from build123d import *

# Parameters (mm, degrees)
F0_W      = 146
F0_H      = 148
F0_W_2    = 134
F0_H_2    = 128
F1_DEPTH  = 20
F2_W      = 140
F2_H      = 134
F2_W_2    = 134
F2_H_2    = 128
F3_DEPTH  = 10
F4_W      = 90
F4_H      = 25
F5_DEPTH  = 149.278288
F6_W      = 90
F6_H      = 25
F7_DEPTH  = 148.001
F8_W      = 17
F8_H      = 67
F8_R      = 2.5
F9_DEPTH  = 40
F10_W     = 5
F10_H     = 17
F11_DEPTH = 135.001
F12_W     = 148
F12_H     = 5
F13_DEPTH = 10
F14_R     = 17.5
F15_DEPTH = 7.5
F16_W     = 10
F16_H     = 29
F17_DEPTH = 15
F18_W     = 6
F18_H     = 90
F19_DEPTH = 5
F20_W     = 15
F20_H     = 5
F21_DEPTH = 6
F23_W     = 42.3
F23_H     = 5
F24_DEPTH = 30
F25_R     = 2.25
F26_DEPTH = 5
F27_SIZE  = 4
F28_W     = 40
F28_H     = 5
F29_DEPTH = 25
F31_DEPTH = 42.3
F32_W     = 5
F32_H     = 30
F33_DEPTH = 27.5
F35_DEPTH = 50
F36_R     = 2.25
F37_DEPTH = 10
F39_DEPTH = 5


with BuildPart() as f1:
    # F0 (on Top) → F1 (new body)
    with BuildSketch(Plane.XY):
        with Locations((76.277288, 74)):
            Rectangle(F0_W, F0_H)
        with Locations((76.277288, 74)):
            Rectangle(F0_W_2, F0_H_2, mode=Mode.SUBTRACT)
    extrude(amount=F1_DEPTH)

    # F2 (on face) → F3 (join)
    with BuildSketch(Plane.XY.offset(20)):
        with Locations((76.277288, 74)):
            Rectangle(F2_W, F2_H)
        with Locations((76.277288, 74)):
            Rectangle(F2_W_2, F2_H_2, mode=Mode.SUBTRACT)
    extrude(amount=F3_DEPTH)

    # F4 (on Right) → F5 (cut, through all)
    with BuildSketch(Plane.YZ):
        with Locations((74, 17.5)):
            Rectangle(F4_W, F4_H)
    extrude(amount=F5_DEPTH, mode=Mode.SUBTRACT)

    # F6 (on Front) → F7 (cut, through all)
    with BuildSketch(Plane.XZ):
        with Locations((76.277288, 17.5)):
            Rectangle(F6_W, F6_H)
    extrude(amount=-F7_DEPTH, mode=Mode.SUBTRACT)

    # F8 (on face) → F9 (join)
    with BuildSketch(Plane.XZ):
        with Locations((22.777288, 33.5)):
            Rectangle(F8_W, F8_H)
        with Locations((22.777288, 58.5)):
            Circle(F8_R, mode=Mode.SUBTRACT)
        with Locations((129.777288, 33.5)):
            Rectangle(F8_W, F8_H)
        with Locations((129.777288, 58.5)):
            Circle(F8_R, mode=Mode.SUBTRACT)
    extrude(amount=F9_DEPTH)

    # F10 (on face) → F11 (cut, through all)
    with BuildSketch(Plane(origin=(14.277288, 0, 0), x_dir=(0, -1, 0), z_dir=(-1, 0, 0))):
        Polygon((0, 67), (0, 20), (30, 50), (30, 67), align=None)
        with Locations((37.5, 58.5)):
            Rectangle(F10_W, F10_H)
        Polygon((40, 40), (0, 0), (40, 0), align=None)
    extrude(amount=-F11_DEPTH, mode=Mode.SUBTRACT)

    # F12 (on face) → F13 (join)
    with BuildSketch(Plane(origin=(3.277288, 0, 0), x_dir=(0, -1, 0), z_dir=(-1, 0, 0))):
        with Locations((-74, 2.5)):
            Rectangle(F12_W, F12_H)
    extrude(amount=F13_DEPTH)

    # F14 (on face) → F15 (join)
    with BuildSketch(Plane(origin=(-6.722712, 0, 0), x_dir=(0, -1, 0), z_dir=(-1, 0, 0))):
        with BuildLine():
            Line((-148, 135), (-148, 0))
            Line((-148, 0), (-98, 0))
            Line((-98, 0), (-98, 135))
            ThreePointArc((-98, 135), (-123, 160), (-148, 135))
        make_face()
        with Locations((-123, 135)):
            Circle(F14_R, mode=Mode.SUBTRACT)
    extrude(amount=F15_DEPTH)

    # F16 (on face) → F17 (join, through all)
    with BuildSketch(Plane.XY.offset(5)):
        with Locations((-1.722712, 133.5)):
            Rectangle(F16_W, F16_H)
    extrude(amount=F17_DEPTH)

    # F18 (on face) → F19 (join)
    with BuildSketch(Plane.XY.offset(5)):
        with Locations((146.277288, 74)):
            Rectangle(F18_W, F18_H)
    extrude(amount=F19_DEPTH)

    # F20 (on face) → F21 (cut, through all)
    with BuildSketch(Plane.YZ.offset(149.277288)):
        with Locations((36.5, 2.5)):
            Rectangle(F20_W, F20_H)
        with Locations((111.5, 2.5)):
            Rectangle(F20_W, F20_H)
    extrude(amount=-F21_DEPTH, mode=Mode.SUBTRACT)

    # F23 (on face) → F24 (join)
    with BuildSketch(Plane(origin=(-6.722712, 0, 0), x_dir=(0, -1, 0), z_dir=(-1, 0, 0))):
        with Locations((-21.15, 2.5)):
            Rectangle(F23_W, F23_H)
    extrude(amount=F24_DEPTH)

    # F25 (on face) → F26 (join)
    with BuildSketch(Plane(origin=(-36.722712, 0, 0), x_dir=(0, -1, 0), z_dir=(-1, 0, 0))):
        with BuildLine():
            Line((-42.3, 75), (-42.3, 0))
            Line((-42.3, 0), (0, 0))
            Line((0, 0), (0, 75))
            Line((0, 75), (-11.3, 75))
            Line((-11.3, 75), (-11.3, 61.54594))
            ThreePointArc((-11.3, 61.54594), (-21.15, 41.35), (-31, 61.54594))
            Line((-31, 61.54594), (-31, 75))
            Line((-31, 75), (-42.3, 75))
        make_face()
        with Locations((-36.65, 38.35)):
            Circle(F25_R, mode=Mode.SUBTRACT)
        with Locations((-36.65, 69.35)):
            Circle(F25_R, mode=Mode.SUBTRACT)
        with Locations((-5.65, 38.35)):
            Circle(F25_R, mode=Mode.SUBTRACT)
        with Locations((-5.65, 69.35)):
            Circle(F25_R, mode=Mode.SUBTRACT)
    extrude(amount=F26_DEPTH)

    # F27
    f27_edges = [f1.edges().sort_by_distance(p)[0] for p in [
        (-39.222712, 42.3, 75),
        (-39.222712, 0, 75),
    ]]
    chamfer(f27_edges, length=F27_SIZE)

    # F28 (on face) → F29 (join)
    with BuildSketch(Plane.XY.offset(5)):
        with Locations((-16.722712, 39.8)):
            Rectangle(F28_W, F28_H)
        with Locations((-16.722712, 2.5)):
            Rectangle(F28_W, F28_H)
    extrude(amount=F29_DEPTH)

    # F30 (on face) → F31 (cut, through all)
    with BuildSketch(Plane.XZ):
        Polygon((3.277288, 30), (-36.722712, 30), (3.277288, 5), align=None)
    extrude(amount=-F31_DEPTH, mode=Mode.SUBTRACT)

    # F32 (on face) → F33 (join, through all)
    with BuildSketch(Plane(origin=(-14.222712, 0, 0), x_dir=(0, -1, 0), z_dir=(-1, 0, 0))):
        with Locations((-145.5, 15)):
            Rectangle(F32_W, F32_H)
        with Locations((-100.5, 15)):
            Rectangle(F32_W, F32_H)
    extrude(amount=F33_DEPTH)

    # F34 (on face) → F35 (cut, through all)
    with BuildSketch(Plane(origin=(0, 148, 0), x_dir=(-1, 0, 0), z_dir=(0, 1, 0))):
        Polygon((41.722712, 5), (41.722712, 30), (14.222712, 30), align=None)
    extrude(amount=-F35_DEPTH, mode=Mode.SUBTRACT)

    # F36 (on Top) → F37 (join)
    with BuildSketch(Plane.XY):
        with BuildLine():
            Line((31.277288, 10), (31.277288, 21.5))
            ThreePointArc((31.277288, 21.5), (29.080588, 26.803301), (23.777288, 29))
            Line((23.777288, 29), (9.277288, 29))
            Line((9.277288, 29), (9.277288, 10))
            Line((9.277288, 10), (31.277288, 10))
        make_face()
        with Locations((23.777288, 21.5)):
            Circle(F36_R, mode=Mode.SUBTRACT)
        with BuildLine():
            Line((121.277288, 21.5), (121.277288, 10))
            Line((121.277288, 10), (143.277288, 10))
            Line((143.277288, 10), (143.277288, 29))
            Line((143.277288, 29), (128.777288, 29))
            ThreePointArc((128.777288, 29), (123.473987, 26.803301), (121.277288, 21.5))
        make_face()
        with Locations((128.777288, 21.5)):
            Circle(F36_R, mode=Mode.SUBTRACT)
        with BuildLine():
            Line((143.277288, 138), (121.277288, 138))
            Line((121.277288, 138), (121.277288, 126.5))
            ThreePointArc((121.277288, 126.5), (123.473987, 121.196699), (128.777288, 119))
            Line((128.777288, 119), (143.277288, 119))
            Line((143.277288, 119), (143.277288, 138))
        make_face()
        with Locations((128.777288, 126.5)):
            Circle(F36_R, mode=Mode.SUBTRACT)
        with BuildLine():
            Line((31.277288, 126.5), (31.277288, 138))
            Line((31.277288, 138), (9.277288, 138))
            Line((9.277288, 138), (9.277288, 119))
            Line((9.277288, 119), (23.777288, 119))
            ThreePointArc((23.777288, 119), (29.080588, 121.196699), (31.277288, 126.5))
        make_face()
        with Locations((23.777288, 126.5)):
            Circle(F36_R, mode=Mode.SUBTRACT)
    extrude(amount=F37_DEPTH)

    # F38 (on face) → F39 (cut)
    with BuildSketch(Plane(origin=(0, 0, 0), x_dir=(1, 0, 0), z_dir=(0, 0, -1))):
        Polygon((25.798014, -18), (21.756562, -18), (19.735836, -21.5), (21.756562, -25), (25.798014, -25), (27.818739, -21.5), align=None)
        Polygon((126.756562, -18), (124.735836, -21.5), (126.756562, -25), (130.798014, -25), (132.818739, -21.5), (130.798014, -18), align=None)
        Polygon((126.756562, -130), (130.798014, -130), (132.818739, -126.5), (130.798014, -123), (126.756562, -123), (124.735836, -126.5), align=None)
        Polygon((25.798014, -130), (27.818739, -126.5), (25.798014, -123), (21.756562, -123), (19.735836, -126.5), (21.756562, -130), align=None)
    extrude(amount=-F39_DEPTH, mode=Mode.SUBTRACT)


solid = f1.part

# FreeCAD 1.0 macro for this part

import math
import FreeCAD as App
import Part
import Sketcher
Q = App.Units.Quantity


def edges_at(feature, points):
    """Names of the edges that pass closest to the given points."""
    edges = feature.Shape.Edges
    near = lambda p: min(range(len(edges)), key=lambda i: edges[i].distToShape(Part.Vertex(*p))[0])
    return sorted({f"Edge{near(p) + 1}" for p in points})


def add_polygon(sketch, points):
    """Adds a closed chain of lines whose ends are joined by coincident constraints."""
    first, n = sketch.GeometryCount, len(points)
    for a, b in zip(points, points[1:] + points[:1]):
        sketch.addGeometry(Part.LineSegment(App.Vector(*a, 0), App.Vector(*b, 0)), False)
    for i in range(n):
        sketch.addConstraint(Sketcher.Constraint("Coincident", first + i, 2, first + (i + 1) % n, 1))

doc = App.newDocument("Part")
body = doc.addObject("PartDesign::Body", "Body")

# Sketch on XY plane
sketch1 = doc.addObject("Sketcher::SketchObject", "Sketch")
body.addObject(sketch1)
sketch1.AttachmentSupport = (doc.XY_Plane, [""])
sketch1.MapMode = "FlatFace"
add_polygon(sketch1, [(3, 148), (3, 0), (149, 0), (149, 148)])  # lines 0-3
add_polygon(sketch1, [(143, 10), (9, 10), (9, 138), (143, 138)])  # lines 4-7
sketch1.addConstraint([
    Sketcher.Constraint("Vertical", 0),
    Sketcher.Constraint("Horizontal", 1),
    Sketcher.Constraint("Vertical", 2),
    Sketcher.Constraint("Horizontal", 3),
    Sketcher.Constraint("Horizontal", 4),
    Sketcher.Constraint("Vertical", 5),
    Sketcher.Constraint("Horizontal", 6),
    Sketcher.Constraint("Vertical", 7),
    Sketcher.Constraint("PointOnObject", 0, 2, -1),
    Sketcher.Constraint("DistanceX", 1, 1, 1, 2, 146.0),
    Sketcher.Constraint("DistanceX", 4, 2, 4, 1, 134.0),
    Sketcher.Constraint("DistanceY", 0, 2, 0, 1, 148.0),
    Sketcher.Constraint("DistanceY", 5, 1, 5, 2, 128.0),
    Sketcher.Constraint("DistanceY", -1, 1, 4, 2, 10.0),
    Sketcher.Constraint("DistanceX", 0, 2, 4, 2, 6.0),
    Sketcher.Constraint("DistanceX", -1, 1, 0, 2, 3.277288),
])
pad1 = doc.addObject("PartDesign::Pad", "Pad")
body.addObject(pad1)
pad1.Profile = sketch1
pad1.Length = 20

# Sketch on XY plane
sketch2 = doc.addObject("Sketcher::SketchObject", "Sketch001")
body.addObject(sketch2)
sketch2.AttachmentSupport = (doc.XY_Plane, [""])
sketch2.MapMode = "FlatFace"
sketch2.AttachmentOffset = App.Placement(App.Vector(0, 0, 20), App.Rotation())
add_polygon(sketch2, [(6, 141), (6, 7), (146, 7), (146, 141)])  # lines 0-3
add_polygon(sketch2, [(143, 10), (9, 10), (9, 138), (143, 138)])  # lines 4-7
sketch2.addConstraint([
    Sketcher.Constraint("Vertical", 0),
    Sketcher.Constraint("Horizontal", 1),
    Sketcher.Constraint("Vertical", 2),
    Sketcher.Constraint("Horizontal", 3),
    Sketcher.Constraint("Horizontal", 4),
    Sketcher.Constraint("Vertical", 5),
    Sketcher.Constraint("Horizontal", 6),
    Sketcher.Constraint("Vertical", 7),
    Sketcher.Constraint("Equal", 6, 0),
    Sketcher.Constraint("DistanceX", 1, 1, 1, 2, 140.0),
    Sketcher.Constraint("DistanceX", 4, 2, 4, 1, 134.0),
    Sketcher.Constraint("DistanceY", 5, 1, 5, 2, 128.0),
    Sketcher.Constraint("DistanceY", -1, 1, 0, 2, 7.0),
    Sketcher.Constraint("DistanceY", -1, 1, 4, 2, 10.0),
    Sketcher.Constraint("DistanceX", 0, 2, 4, 2, 3.0),
    Sketcher.Constraint("DistanceX", -1, 1, 0, 2, 6.277288),
])
pad2 = doc.addObject("PartDesign::Pad", "Pad001")
body.addObject(pad2)
pad2.Profile = sketch2
pad2.Length = 10

# Sketch on YZ plane
sketch3 = doc.addObject("Sketcher::SketchObject", "Sketch002")
body.addObject(sketch3)
sketch3.AttachmentSupport = (doc.YZ_Plane, [""])
sketch3.MapMode = "FlatFace"
add_polygon(sketch3, [(29, 30), (29, 5), (119, 5), (119, 30)])  # lines 0-3
sketch3.addConstraint([
    Sketcher.Constraint("Vertical", 0),
    Sketcher.Constraint("Horizontal", 1),
    Sketcher.Constraint("Vertical", 2),
    Sketcher.Constraint("Horizontal", 3),
    Sketcher.Constraint("DistanceX", 1, 1, 1, 2, 90.0),
    Sketcher.Constraint("DistanceY", 0, 2, 0, 1, 25.0),
    Sketcher.Constraint("DistanceX", -1, 1, 0, 2, 29.0),
    Sketcher.Constraint("DistanceY", -1, 1, 0, 2, 5.0),
])
pocket1 = doc.addObject("PartDesign::Pocket", "Pocket")
body.addObject(pocket1)
pocket1.Profile = sketch3
pocket1.Type = "ThroughAll"
pocket1.Reversed = True

# Sketch on XZ plane
sketch4 = doc.addObject("Sketcher::SketchObject", "Sketch003")
body.addObject(sketch4)
sketch4.AttachmentSupport = (doc.XZ_Plane, [""])
sketch4.MapMode = "FlatFace"
add_polygon(sketch4, [(31, 30), (31, 5), (121, 5), (121, 30)])  # lines 0-3
sketch4.addConstraint([
    Sketcher.Constraint("Vertical", 0),
    Sketcher.Constraint("Horizontal", 1),
    Sketcher.Constraint("Vertical", 2),
    Sketcher.Constraint("Horizontal", 3),
    Sketcher.Constraint("DistanceX", 1, 1, 1, 2, 90.0),
    Sketcher.Constraint("DistanceY", 0, 2, 0, 1, 25.0),
    Sketcher.Constraint("DistanceY", -1, 1, 0, 2, 5.0),
    Sketcher.Constraint("DistanceX", -1, 1, 1, 2, 121.277288),
])
pocket2 = doc.addObject("PartDesign::Pocket", "Pocket001")
body.addObject(pocket2)
pocket2.Profile = sketch4
pocket2.Type = "ThroughAll"

# Sketch on XZ plane
sketch5 = doc.addObject("Sketcher::SketchObject", "Sketch004")
body.addObject(sketch5)
sketch5.AttachmentSupport = (doc.XZ_Plane, [""])
sketch5.MapMode = "FlatFace"
add_polygon(sketch5, [(14.3, 67), (14.3, 0), (31.3, 0), (31.3, 67)])  # lines 0-3
sketch5.addGeometry(Part.Circle(App.Vector(22.8, 58.5, 0), App.Vector(0, 0, 1), 2.5), False)  # 4
add_polygon(sketch5, [(121.3, 67), (121.3, 0), (138.3, 0), (138.3, 67)])  # lines 5-8
sketch5.addGeometry(Part.Circle(App.Vector(129.8, 58.5, 0), App.Vector(0, 0, 1), 2.5), False)  # 9
sketch5.addConstraint([
    Sketcher.Constraint("Vertical", 0),
    Sketcher.Constraint("Horizontal", 1),
    Sketcher.Constraint("Vertical", 2),
    Sketcher.Constraint("Horizontal", 3),
    Sketcher.Constraint("Vertical", 5),
    Sketcher.Constraint("Horizontal", 6),
    Sketcher.Constraint("Vertical", 7),
    Sketcher.Constraint("Horizontal", 8),
    Sketcher.Constraint("Equal", 4, 9),
    Sketcher.Constraint("PointOnObject", 0, 2, -1),
    Sketcher.Constraint("PointOnObject", 5, 2, -1),
    Sketcher.Constraint("Horizontal", 4, 3, 9, 3),
    Sketcher.Constraint("Horizontal", 3, 2, 7, 2),
    Sketcher.Constraint("Equal", 3, 6),
    Sketcher.Constraint("Diameter", 4, 5.0),
    Sketcher.Constraint("DistanceX", 1, 1, 1, 2, 17.0),
    Sketcher.Constraint("DistanceY", 0, 2, 0, 1, 67.0),
    Sketcher.Constraint("DistanceX", 4, 3, 9, 3, 107.0),
    Sketcher.Constraint("DistanceX", 1, 2, 5, 2, 90.0),
    Sketcher.Constraint("DistanceY", -1, 1, 4, 3, 58.5),
    Sketcher.Constraint("DistanceX", 0, 2, 4, 3, 8.5),
    Sketcher.Constraint("DistanceX", -1, 1, 9, 3, 129.777288),
])
pad3 = doc.addObject("PartDesign::Pad", "Pad002")
body.addObject(pad3)
pad3.Profile = sketch5
pad3.Length = 40

# Sketch on YZ plane
sketch6 = doc.addObject("Sketcher::SketchObject", "Sketch005")
body.addObject(sketch6)
sketch6.AttachmentSupport = (doc.YZ_Plane, [""])
sketch6.MapMode = "FlatFace"
sketch6.AttachmentOffset = App.Placement(App.Vector(0, 0, 14.277288), App.Rotation())
add_polygon(sketch6, [(0, 67), (0, 20), (-30, 50), (-30, 67)])  # lines 0-3
add_polygon(sketch6, [(-35, 67), (-35, 50), (-40, 50), (-40, 67)])  # lines 4-7
add_polygon(sketch6, [(-40, 40), (0, 0), (-40, 0)])  # lines 8-10
sketch6.addConstraint([
    Sketcher.Constraint("Vertical", 0),
    Sketcher.Constraint("Vertical", 2),
    Sketcher.Constraint("Horizontal", 3),
    Sketcher.Constraint("Vertical", 4),
    Sketcher.Constraint("Horizontal", 5),
    Sketcher.Constraint("Vertical", 6),
    Sketcher.Constraint("Horizontal", 7),
    Sketcher.Constraint("Horizontal", 9),
    Sketcher.Constraint("Vertical", 10),
    Sketcher.Constraint("Coincident", 8, 2, -1, 1),
    Sketcher.Constraint("PointOnObject", 0, 2, -2),
    Sketcher.Constraint("Parallel", 1, 8),
    Sketcher.Constraint("Horizontal", 1, 2, 4, 2),
    Sketcher.Constraint("Horizontal", 3, 2, 6, 2),
    Sketcher.Constraint("Vertical", 6, 2, 9, 2),
    Sketcher.Constraint("Equal", 9, 10),
    Sketcher.Constraint("DistanceX", 3, 1, 3, 2, 30.0),
    Sketcher.Constraint("DistanceX", 5, 2, 5, 1, 5.0),
    Sketcher.Constraint("DistanceX", 9, 2, 9, 1, 40.0),
    Sketcher.Constraint("DistanceY", 0, 2, 0, 1, 47.0),
    Sketcher.Constraint("DistanceY", -1, 1, 0, 2, 20.0),
])
pocket3 = doc.addObject("PartDesign::Pocket", "Pocket002")
body.addObject(pocket3)
pocket3.Profile = sketch6
pocket3.Type = "ThroughAll"
pocket3.Reversed = True

# Sketch on YZ plane
sketch7 = doc.addObject("Sketcher::SketchObject", "Sketch006")
body.addObject(sketch7)
sketch7.AttachmentSupport = (doc.YZ_Plane, [""])
sketch7.MapMode = "FlatFace"
sketch7.AttachmentOffset = App.Placement(App.Vector(0, 0, 3.277288), App.Rotation())
add_polygon(sketch7, [(148, 5), (148, 0), (0, 0), (0, 5)])  # lines 0-3
sketch7.addConstraint([
    Sketcher.Constraint("Vertical", 0),
    Sketcher.Constraint("Horizontal", 1),
    Sketcher.Constraint("Vertical", 2),
    Sketcher.Constraint("Horizontal", 3),
    Sketcher.Constraint("Coincident", 1, 2, -1, 1),
    Sketcher.Constraint("DistanceX", 1, 2, 1, 1, 148.0),
    Sketcher.Constraint("DistanceY", 0, 2, 0, 1, 5.0),
])
pad4 = doc.addObject("PartDesign::Pad", "Pad003")
body.addObject(pad4)
pad4.Profile = sketch7
pad4.Length = 10
pad4.Reversed = True

# Sketch on YZ plane
sketch8 = doc.addObject("Sketcher::SketchObject", "Sketch007")
body.addObject(sketch8)
sketch8.AttachmentSupport = (doc.YZ_Plane, [""])
sketch8.MapMode = "FlatFace"
sketch8.AttachmentOffset = App.Placement(App.Vector(0, 0, -6.722712), App.Rotation())
sketch8.addGeometry([
    Part.LineSegment(App.Vector(148, 135, 0), App.Vector(148, 0, 0)),  # 0
    Part.LineSegment(App.Vector(148, 0, 0), App.Vector(98, 0, 0)),  # 1
    Part.LineSegment(App.Vector(98, 0, 0), App.Vector(98, 135, 0)),  # 2
    Part.ArcOfCircle(Part.Circle(App.Vector(123, 135, 0), App.Vector(0, 0, 1), 25), math.radians(0), math.radians(180)),  # 3
    Part.Circle(App.Vector(123, 135, 0), App.Vector(0, 0, 1), 18),  # 4
], False)
sketch8.addConstraint([
    Sketcher.Constraint("Coincident", 0, 2, 1, 1),
    Sketcher.Constraint("Coincident", 1, 2, 2, 1),
    Sketcher.Constraint("Tangent", 2, 2, 3, 2),
    Sketcher.Constraint("Tangent", 3, 1, 0, 1),
    Sketcher.Constraint("Vertical", 0),
    Sketcher.Constraint("Horizontal", 1),
    Sketcher.Constraint("Vertical", 2),
    Sketcher.Constraint("Coincident", 4, 3, 3, 3),
    Sketcher.Constraint("PointOnObject", 0, 2, -1),
    Sketcher.Constraint("Diameter", 4, 35.0),
    Sketcher.Constraint("Radius", 3, 25.0),
    Sketcher.Constraint("DistanceY", 0, 2, 0, 1, 135.0),
    Sketcher.Constraint("DistanceX", -1, 1, 3, 3, 123.0),
])
pad5 = doc.addObject("PartDesign::Pad", "Pad004")
body.addObject(pad5)
pad5.Profile = sketch8
pad5.Length = 7.5
pad5.Reversed = True

# Sketch on XY plane
sketch9 = doc.addObject("Sketcher::SketchObject", "Sketch008")
body.addObject(sketch9)
sketch9.AttachmentSupport = (doc.XY_Plane, [""])
sketch9.MapMode = "FlatFace"
sketch9.AttachmentOffset = App.Placement(App.Vector(0, 0, 5), App.Rotation())
add_polygon(sketch9, [(-7, 148), (-7, 119), (3, 119), (3, 148)])  # lines 0-3
sketch9.addConstraint([
    Sketcher.Constraint("Vertical", 0),
    Sketcher.Constraint("Horizontal", 1),
    Sketcher.Constraint("Vertical", 2),
    Sketcher.Constraint("Horizontal", 3),
    Sketcher.Constraint("DistanceX", 1, 1, 1, 2, 10.0),
    Sketcher.Constraint("DistanceY", 0, 2, 0, 1, 29.0),
    Sketcher.Constraint("DistanceY", -1, 1, 0, 2, 119.0),
    Sketcher.Constraint("DistanceX", 0, 2, -1, 1, 6.722712),
])
pad6 = doc.addObject("PartDesign::Pad", "Pad005")
body.addObject(pad6)
pad6.Profile = sketch9
pad6.Length = 15

# Sketch on XY plane
sketch10 = doc.addObject("Sketcher::SketchObject", "Sketch009")
body.addObject(sketch10)
sketch10.AttachmentSupport = (doc.XY_Plane, [""])
sketch10.MapMode = "FlatFace"
sketch10.AttachmentOffset = App.Placement(App.Vector(0, 0, 5), App.Rotation())
add_polygon(sketch10, [(143, 119), (143, 29), (149, 29), (149, 119)])  # lines 0-3
sketch10.addConstraint([
    Sketcher.Constraint("Vertical", 0),
    Sketcher.Constraint("Horizontal", 1),
    Sketcher.Constraint("Vertical", 2),
    Sketcher.Constraint("Horizontal", 3),
    Sketcher.Constraint("DistanceX", 1, 1, 1, 2, 6.0),
    Sketcher.Constraint("DistanceY", 0, 2, 0, 1, 90.0),
    Sketcher.Constraint("DistanceY", -1, 1, 0, 2, 29.0),
    Sketcher.Constraint("DistanceX", -1, 1, 0, 2, 143.277288),
])
pad7 = doc.addObject("PartDesign::Pad", "Pad006")
body.addObject(pad7)
pad7.Profile = sketch10
pad7.Length = 5

# Sketch on YZ plane
sketch11 = doc.addObject("Sketcher::SketchObject", "Sketch010")
body.addObject(sketch11)
sketch11.AttachmentSupport = (doc.YZ_Plane, [""])
sketch11.MapMode = "FlatFace"
sketch11.AttachmentOffset = App.Placement(App.Vector(0, 0, 149.277288), App.Rotation())
add_polygon(sketch11, [(29, 5), (29, 0), (44, 0), (44, 5)])  # lines 0-3
add_polygon(sketch11, [(104, 5), (104, 0), (119, 0), (119, 5)])  # lines 4-7
sketch11.addConstraint([
    Sketcher.Constraint("Vertical", 0),
    Sketcher.Constraint("Horizontal", 1),
    Sketcher.Constraint("Vertical", 2),
    Sketcher.Constraint("Horizontal", 3),
    Sketcher.Constraint("Vertical", 4),
    Sketcher.Constraint("Horizontal", 5),
    Sketcher.Constraint("Vertical", 6),
    Sketcher.Constraint("Horizontal", 7),
    Sketcher.Constraint("PointOnObject", 0, 2, -1),
    Sketcher.Constraint("PointOnObject", 4, 2, -1),
    Sketcher.Constraint("Horizontal", 3, 2, 6, 2),
    Sketcher.Constraint("Equal", 3, 5),
    Sketcher.Constraint("DistanceX", 1, 1, 1, 2, 15.0),
    Sketcher.Constraint("DistanceY", 0, 2, 0, 1, 5.0),
    Sketcher.Constraint("DistanceX", -1, 1, 0, 2, 29.0),
    Sketcher.Constraint("DistanceX", -1, 1, 4, 2, 104.0),
])
pocket4 = doc.addObject("PartDesign::Pocket", "Pocket003")
body.addObject(pocket4)
pocket4.Profile = sketch11
pocket4.Length = 6

# Sketch on YZ plane
sketch12 = doc.addObject("Sketcher::SketchObject", "Sketch011")
body.addObject(sketch12)
sketch12.AttachmentSupport = (doc.YZ_Plane, [""])
sketch12.MapMode = "FlatFace"
sketch12.AttachmentOffset = App.Placement(App.Vector(0, 0, -6.722712), App.Rotation())
add_polygon(sketch12, [(42, 5), (42, 0), (0, 0), (0, 5)])  # lines 0-3
sketch12.addConstraint([
    Sketcher.Constraint("Vertical", 0),
    Sketcher.Constraint("Horizontal", 1),
    Sketcher.Constraint("Vertical", 2),
    Sketcher.Constraint("Horizontal", 3),
    Sketcher.Constraint("Coincident", 1, 2, -1, 1),
    Sketcher.Constraint("DistanceY", 0, 2, 0, 1, 5.0),
    Sketcher.Constraint("DistanceX", 1, 2, 1, 1, 42.3),
])
pad8 = doc.addObject("PartDesign::Pad", "Pad007")
body.addObject(pad8)
pad8.Profile = sketch12
pad8.Length = 30
pad8.Reversed = True

# Sketch on YZ plane
sketch13 = doc.addObject("Sketcher::SketchObject", "Sketch012")
body.addObject(sketch13)
sketch13.AttachmentSupport = (doc.YZ_Plane, [""])
sketch13.MapMode = "FlatFace"
sketch13.AttachmentOffset = App.Placement(App.Vector(0, 0, -36.722712), App.Rotation())
sketch13.addGeometry([
    Part.LineSegment(App.Vector(42.3, 75, 0), App.Vector(42.3, 0, 0)),  # 0
    Part.LineSegment(App.Vector(42.3, 0, 0), App.Vector(0, 0, 0)),  # 1
    Part.LineSegment(App.Vector(0, 0, 0), App.Vector(0, 75, 0)),  # 2
    Part.LineSegment(App.Vector(0, 75, 0), App.Vector(11.3, 75, 0)),  # 3
    Part.LineSegment(App.Vector(11.3, 75, 0), App.Vector(11.3, 61.5, 0)),  # 4
    Part.ArcOfCircle(Part.Circle(App.Vector(21.1, 53.8, 0), App.Vector(0, 0, 1), 12.5), math.radians(142), math.radians(398)),  # 5
    Part.LineSegment(App.Vector(31, 61.5, 0), App.Vector(31, 75, 0)),  # 6
    Part.LineSegment(App.Vector(31, 75, 0), App.Vector(42.3, 75, 0)),  # 7
    Part.Circle(App.Vector(36.6, 38.4, 0), App.Vector(0, 0, 1), 2.2),  # 8
    Part.Circle(App.Vector(5.7, 38.4, 0), App.Vector(0, 0, 1), 2.2),  # 9
    Part.Circle(App.Vector(36.6, 69.3, 0), App.Vector(0, 0, 1), 2.2),  # 10
    Part.Circle(App.Vector(5.7, 69.3, 0), App.Vector(0, 0, 1), 2.2),  # 11
], False)
sketch13.addConstraint([
    Sketcher.Constraint("Coincident", 0, 2, 1, 1),
    Sketcher.Constraint("Coincident", 1, 2, 2, 1),
    Sketcher.Constraint("Coincident", 2, 2, 3, 1),
    Sketcher.Constraint("Coincident", 3, 2, 4, 1),
    Sketcher.Constraint("Coincident", 4, 2, 5, 1),
    Sketcher.Constraint("Coincident", 5, 2, 6, 1),
    Sketcher.Constraint("Coincident", 6, 2, 7, 1),
    Sketcher.Constraint("Coincident", 7, 2, 0, 1),
    Sketcher.Constraint("Vertical", 0),
    Sketcher.Constraint("Horizontal", 1),
    Sketcher.Constraint("Vertical", 2),
    Sketcher.Constraint("Horizontal", 3),
    Sketcher.Constraint("Vertical", 4),
    Sketcher.Constraint("Vertical", 6),
    Sketcher.Constraint("Horizontal", 7),
    Sketcher.Constraint("Coincident", 1, 2, -1, 1),
    Sketcher.Constraint("Equal", 8, 9),
    Sketcher.Constraint("Equal", 9, 10),
    Sketcher.Constraint("Equal", 10, 11),
    Sketcher.Constraint("Horizontal", 8, 3, 9, 3),
    Sketcher.Constraint("Horizontal", 10, 3, 11, 3),
    Sketcher.Constraint("Horizontal", 4, 2, 5, 2),
    Sketcher.Constraint("Horizontal", 3, 2, 6, 2),
    Sketcher.Constraint("Vertical", 8, 3, 10, 3),
    Sketcher.Constraint("Vertical", 9, 3, 11, 3),
    Sketcher.Constraint("Equal", 3, 7),
    Sketcher.Constraint("Diameter", 8, 4.5),
    Sketcher.Constraint("Radius", 5, 12.5),
    Sketcher.Constraint("DistanceY", 0, 2, 0, 1, 75.0),
    Sketcher.Constraint("DistanceX", 1, 2, 1, 1, 42.3),
    Sketcher.Constraint("DistanceX", 3, 1, 3, 2, 11.3),
    Sketcher.Constraint("DistanceX", 9, 3, 8, 3, 31.0),
    Sketcher.Constraint("DistanceY", 8, 3, 10, 3, 31.0),
    Sketcher.Constraint("DistanceX", 5, 3, 8, 3, 15.5),
    Sketcher.Constraint("DistanceY", 8, 3, 5, 3, 15.5),
    Sketcher.Constraint("DistanceY", -1, 1, 5, 3, 53.85),
])
pad9 = doc.addObject("PartDesign::Pad", "Pad008")
body.addObject(pad9)
pad9.Profile = sketch13
pad9.Length = 5
pad9.Reversed = True
doc.recompute()

chamfer = doc.addObject("PartDesign::Chamfer", "Chamfer")
body.addObject(chamfer)
chamfer.Base = (pad9, edges_at(pad9, [(-39.223, 42.3, 75), (-39.223, 0, 75)]))
chamfer.Size = 4

# Sketch on XY plane
sketch14 = doc.addObject("Sketcher::SketchObject", "Sketch013")
body.addObject(sketch14)
sketch14.AttachmentSupport = (doc.XY_Plane, [""])
sketch14.MapMode = "FlatFace"
sketch14.AttachmentOffset = App.Placement(App.Vector(0, 0, 5), App.Rotation())
add_polygon(sketch14, [(-37, 42), (-37, 37), (3, 37), (3, 42)])  # lines 0-3
add_polygon(sketch14, [(-37, 5), (-37, 0), (3, 0), (3, 5)])  # lines 4-7
sketch14.addConstraint([
    Sketcher.Constraint("Vertical", 0),
    Sketcher.Constraint("Horizontal", 1),
    Sketcher.Constraint("Vertical", 2),
    Sketcher.Constraint("Horizontal", 3),
    Sketcher.Constraint("Vertical", 4),
    Sketcher.Constraint("Horizontal", 5),
    Sketcher.Constraint("Vertical", 6),
    Sketcher.Constraint("Horizontal", 7),
    Sketcher.Constraint("PointOnObject", 4, 2, -1),
    Sketcher.Constraint("Vertical", 3, 2, 4, 2),
    Sketcher.Constraint("Vertical", 2, 2, 5, 2),
    Sketcher.Constraint("Equal", 2, 4),
    Sketcher.Constraint("DistanceX", 1, 1, 1, 2, 40.0),
    Sketcher.Constraint("DistanceY", 0, 2, 0, 1, 5.0),
    Sketcher.Constraint("DistanceY", -1, 1, 0, 2, 37.3),
    Sketcher.Constraint("DistanceX", -1, 1, 1, 2, 3.277288),
])
pad10 = doc.addObject("PartDesign::Pad", "Pad009")
body.addObject(pad10)
pad10.Profile = sketch14
pad10.Length = 25

# Sketch on XZ plane
sketch15 = doc.addObject("Sketcher::SketchObject", "Sketch014")
body.addObject(sketch15)
sketch15.AttachmentSupport = (doc.XZ_Plane, [""])
sketch15.MapMode = "FlatFace"
add_polygon(sketch15, [(3, 30), (-37, 30), (3, 5)])  # lines 0-2
sketch15.addConstraint([
    Sketcher.Constraint("Horizontal", 0),
    Sketcher.Constraint("Vertical", 2),
    Sketcher.Constraint("DistanceX", 0, 2, 0, 1, 40.0),
    Sketcher.Constraint("DistanceY", 2, 1, 2, 2, 25.0),
    Sketcher.Constraint("DistanceY", -1, 1, 0, 2, 30.0),
    Sketcher.Constraint("DistanceX", -1, 1, 1, 2, 3.277288),
])
pocket5 = doc.addObject("PartDesign::Pocket", "Pocket004")
body.addObject(pocket5)
pocket5.Profile = sketch15
pocket5.Length = 42.3

# Sketch on YZ plane
sketch16 = doc.addObject("Sketcher::SketchObject", "Sketch015")
body.addObject(sketch16)
sketch16.AttachmentSupport = (doc.YZ_Plane, [""])
sketch16.MapMode = "FlatFace"
sketch16.AttachmentOffset = App.Placement(App.Vector(0, 0, -14.222712), App.Rotation())
add_polygon(sketch16, [(148, 30), (148, 0), (143, 0), (143, 30)])  # lines 0-3
add_polygon(sketch16, [(103, 30), (103, 0), (98, 0), (98, 30)])  # lines 4-7
sketch16.addConstraint([
    Sketcher.Constraint("Vertical", 0),
    Sketcher.Constraint("Horizontal", 1),
    Sketcher.Constraint("Vertical", 2),
    Sketcher.Constraint("Horizontal", 3),
    Sketcher.Constraint("Vertical", 4),
    Sketcher.Constraint("Horizontal", 5),
    Sketcher.Constraint("Vertical", 6),
    Sketcher.Constraint("Horizontal", 7),
    Sketcher.Constraint("PointOnObject", 0, 2, -1),
    Sketcher.Constraint("PointOnObject", 4, 2, -1),
    Sketcher.Constraint("Horizontal", 3, 2, 6, 2),
    Sketcher.Constraint("Equal", 3, 5),
    Sketcher.Constraint("DistanceX", 1, 2, 1, 1, 5.0),
    Sketcher.Constraint("DistanceY", 0, 2, 0, 1, 30.0),
    Sketcher.Constraint("DistanceX", -1, 1, 0, 2, 148.0),
    Sketcher.Constraint("DistanceX", -1, 1, 4, 2, 103.0),
])
pad11 = doc.addObject("PartDesign::Pad", "Pad010")
body.addObject(pad11)
pad11.Profile = sketch16
pad11.Length = 27.5
pad11.Reversed = True

# Sketch on XZ plane
sketch17 = doc.addObject("Sketcher::SketchObject", "Sketch016")
body.addObject(sketch17)
sketch17.AttachmentSupport = (doc.XZ_Plane, [""])
sketch17.MapMode = "FlatFace"
sketch17.AttachmentOffset = App.Placement(App.Vector(0, 0, -148), App.Rotation())
add_polygon(sketch17, [(-42, 5), (-42, 30), (-14, 30)])  # lines 0-2
sketch17.addConstraint([
    Sketcher.Constraint("Vertical", 0),
    Sketcher.Constraint("Horizontal", 1),
    Sketcher.Constraint("DistanceY", 0, 1, 0, 2, 25.0),
    Sketcher.Constraint("DistanceX", 1, 1, 1, 2, 27.5),
    Sketcher.Constraint("DistanceY", -1, 1, 0, 2, 30.0),
    Sketcher.Constraint("DistanceX", 0, 2, -1, 1, 41.722712),
])
pocket6 = doc.addObject("PartDesign::Pocket", "Pocket005")
body.addObject(pocket6)
pocket6.Profile = sketch17
pocket6.Length = 50
pocket6.Reversed = True

# Sketch on XY plane
sketch18 = doc.addObject("Sketcher::SketchObject", "Sketch017")
body.addObject(sketch18)
sketch18.AttachmentSupport = (doc.XY_Plane, [""])
sketch18.MapMode = "FlatFace"
sketch18.addGeometry([
    Part.LineSegment(App.Vector(31.3, 10, 0), App.Vector(31.3, 21.5, 0)),  # 0
    Part.ArcOfCircle(Part.Circle(App.Vector(23.8, 21.5, 0), App.Vector(0, 0, 1), 7.5), math.radians(0), math.radians(90)),  # 1
    Part.LineSegment(App.Vector(23.8, 29, 0), App.Vector(9.3, 29, 0)),  # 2
    Part.LineSegment(App.Vector(9.3, 29, 0), App.Vector(9.3, 10, 0)),  # 3
    Part.LineSegment(App.Vector(9.3, 10, 0), App.Vector(31.3, 10, 0)),  # 4
    Part.Circle(App.Vector(23.8, 21.5, 0), App.Vector(0, 0, 1), 2.2),  # 5
    Part.LineSegment(App.Vector(121.3, 21.5, 0), App.Vector(121.3, 10, 0)),  # 6
    Part.LineSegment(App.Vector(121.3, 10, 0), App.Vector(143.3, 10, 0)),  # 7
    Part.LineSegment(App.Vector(143.3, 10, 0), App.Vector(143.3, 29, 0)),  # 8
    Part.LineSegment(App.Vector(143.3, 29, 0), App.Vector(128.8, 29, 0)),  # 9
    Part.ArcOfCircle(Part.Circle(App.Vector(128.8, 21.5, 0), App.Vector(0, 0, 1), 7.5), math.radians(90), math.radians(180)),  # 10
    Part.Circle(App.Vector(128.8, 21.5, 0), App.Vector(0, 0, 1), 2.2),  # 11
    Part.LineSegment(App.Vector(143.3, 138, 0), App.Vector(121.3, 138, 0)),  # 12
    Part.LineSegment(App.Vector(121.3, 138, 0), App.Vector(121.3, 126.5, 0)),  # 13
    Part.ArcOfCircle(Part.Circle(App.Vector(128.8, 126.5, 0), App.Vector(0, 0, 1), 7.5), math.radians(180), math.radians(270)),  # 14
    Part.LineSegment(App.Vector(128.8, 119, 0), App.Vector(143.3, 119, 0)),  # 15
    Part.LineSegment(App.Vector(143.3, 119, 0), App.Vector(143.3, 138, 0)),  # 16
    Part.Circle(App.Vector(128.8, 126.5, 0), App.Vector(0, 0, 1), 2.2),  # 17
    Part.LineSegment(App.Vector(31.3, 126.5, 0), App.Vector(31.3, 138, 0)),  # 18
    Part.LineSegment(App.Vector(31.3, 138, 0), App.Vector(9.3, 138, 0)),  # 19
    Part.LineSegment(App.Vector(9.3, 138, 0), App.Vector(9.3, 119, 0)),  # 20
    Part.LineSegment(App.Vector(9.3, 119, 0), App.Vector(23.8, 119, 0)),  # 21
    Part.ArcOfCircle(Part.Circle(App.Vector(23.8, 126.5, 0), App.Vector(0, 0, 1), 7.5), math.radians(-90), math.radians(0)),  # 22
    Part.Circle(App.Vector(23.8, 126.5, 0), App.Vector(0, 0, 1), 2.2),  # 23
], False)
sketch18.addConstraint([
    Sketcher.Constraint("Tangent", 0, 2, 1, 1),
    Sketcher.Constraint("Tangent", 1, 2, 2, 1),
    Sketcher.Constraint("Coincident", 2, 2, 3, 1),
    Sketcher.Constraint("Coincident", 3, 2, 4, 1),
    Sketcher.Constraint("Coincident", 4, 2, 0, 1),
    Sketcher.Constraint("Coincident", 6, 2, 7, 1),
    Sketcher.Constraint("Coincident", 7, 2, 8, 1),
    Sketcher.Constraint("Coincident", 8, 2, 9, 1),
    Sketcher.Constraint("Tangent", 9, 2, 10, 1),
    Sketcher.Constraint("Tangent", 10, 2, 6, 1),
    Sketcher.Constraint("Coincident", 12, 2, 13, 1),
    Sketcher.Constraint("Tangent", 13, 2, 14, 1),
    Sketcher.Constraint("Tangent", 14, 2, 15, 1),
    Sketcher.Constraint("Coincident", 15, 2, 16, 1),
    Sketcher.Constraint("Coincident", 16, 2, 12, 1),
    Sketcher.Constraint("Coincident", 18, 2, 19, 1),
    Sketcher.Constraint("Coincident", 19, 2, 20, 1),
    Sketcher.Constraint("Coincident", 20, 2, 21, 1),
    Sketcher.Constraint("Tangent", 21, 2, 22, 1),
    Sketcher.Constraint("Tangent", 22, 2, 18, 1),
    Sketcher.Constraint("Vertical", 0),
    Sketcher.Constraint("Horizontal", 2),
    Sketcher.Constraint("Vertical", 3),
    Sketcher.Constraint("Horizontal", 4),
    Sketcher.Constraint("Vertical", 6),
    Sketcher.Constraint("Horizontal", 7),
    Sketcher.Constraint("Vertical", 8),
    Sketcher.Constraint("Horizontal", 9),
    Sketcher.Constraint("Horizontal", 12),
    Sketcher.Constraint("Vertical", 13),
    Sketcher.Constraint("Horizontal", 15),
    Sketcher.Constraint("Vertical", 16),
    Sketcher.Constraint("Vertical", 18),
    Sketcher.Constraint("Horizontal", 19),
    Sketcher.Constraint("Vertical", 20),
    Sketcher.Constraint("Horizontal", 21),
    Sketcher.Constraint("Coincident", 5, 3, 1, 3),
    Sketcher.Constraint("Coincident", 11, 3, 10, 3),
    Sketcher.Constraint("Coincident", 17, 3, 14, 3),
    Sketcher.Constraint("Coincident", 23, 3, 22, 3),
    Sketcher.Constraint("Equal", 1, 10),
    Sketcher.Constraint("Equal", 5, 11),
    Sketcher.Constraint("Equal", 10, 14),
    Sketcher.Constraint("Equal", 11, 17),
    Sketcher.Constraint("Equal", 14, 22),
    Sketcher.Constraint("Equal", 17, 23),
    Sketcher.Constraint("Horizontal", 5, 3, 10, 3),
    Sketcher.Constraint("Horizontal", 17, 3, 22, 3),
    Sketcher.Constraint("Horizontal", 4, 2, 6, 2),
    Sketcher.Constraint("Horizontal", 16, 2, 18, 2),
    Sketcher.Constraint("Vertical", 11, 3, 14, 3),
    Sketcher.Constraint("Vertical", 5, 3, 22, 3),
    Sketcher.Constraint("Vertical", 8, 2, 15, 2),
    Sketcher.Constraint("Vertical", 3, 2, 19, 2),
    Sketcher.Constraint("Equal", 4, 7),
    Sketcher.Constraint("Equal", 6, 13),
    Sketcher.Constraint("Diameter", 5, 4.5),
    Sketcher.Constraint("Radius", 1, 7.500001),
    Sketcher.Constraint("DistanceX", 4, 1, 4, 2, 22.0),
    Sketcher.Constraint("DistanceY", 3, 2, 3, 1, 19.0),
    Sketcher.Constraint("DistanceY", -1, 1, 1, 2, 29.0),
    Sketcher.Constraint("DistanceY", -1, 1, 12, 2, 138.0),
    Sketcher.Constraint("DistanceX", 5, 3, 10, 3, 105.0),
    Sketcher.Constraint("DistanceX", -1, 1, 11, 3, 128.777288),
])
pad12 = doc.addObject("PartDesign::Pad", "Pad011")
body.addObject(pad12)
pad12.Profile = sketch18
pad12.Length = 10

# Sketch on XY plane
sketch19 = doc.addObject("Sketcher::SketchObject", "Sketch018")
body.addObject(sketch19)
sketch19.AttachmentSupport = (doc.XY_Plane, [""])
sketch19.MapMode = "FlatFace"
add_polygon(sketch19, [(25.8, 18), (21.8, 18), (19.7, 21.5), (21.8, 25), (25.8, 25), (27.8, 21.5)])  # lines 0-5
add_polygon(sketch19, [(126.8, 18), (124.7, 21.5), (126.8, 25), (130.8, 25), (132.8, 21.5), (130.8, 18)])  # lines 6-11
add_polygon(sketch19, [(126.8, 130), (130.8, 130), (132.8, 126.5), (130.8, 123), (126.8, 123), (124.7, 126.5)])  # lines 12-17
add_polygon(sketch19, [(25.8, 130), (27.8, 126.5), (25.8, 123), (21.8, 123), (19.7, 126.5), (21.8, 130)])  # lines 18-23
sketch19.addConstraint([
    Sketcher.Constraint("Horizontal", 0),
    Sketcher.Constraint("Horizontal", 3),
    Sketcher.Constraint("Horizontal", 8),
    Sketcher.Constraint("Horizontal", 11),
    Sketcher.Constraint("Horizontal", 12),
    Sketcher.Constraint("Horizontal", 15),
    Sketcher.Constraint("Horizontal", 20),
    Sketcher.Constraint("Horizontal", 23),
    Sketcher.Constraint("Parallel", 1, 4),
    Sketcher.Constraint("Parallel", 2, 5),
    Sketcher.Constraint("Parallel", 4, 6),
    Sketcher.Constraint("Parallel", 5, 7),
    Sketcher.Constraint("Parallel", 6, 9),
    Sketcher.Constraint("Parallel", 7, 10),
    Sketcher.Constraint("Parallel", 9, 13),
    Sketcher.Constraint("Parallel", 10, 14),
    Sketcher.Constraint("Parallel", 13, 16),
    Sketcher.Constraint("Parallel", 14, 17),
    Sketcher.Constraint("Parallel", 16, 18),
    Sketcher.Constraint("Parallel", 17, 19),
    Sketcher.Constraint("Parallel", 18, 21),
    Sketcher.Constraint("Parallel", 19, 22),
    Sketcher.Constraint("Horizontal", 1, 2, 4, 2),
    Sketcher.Constraint("Horizontal", 4, 2, 6, 2),
    Sketcher.Constraint("Horizontal", 3, 2, 7, 2),
    Sketcher.Constraint("Horizontal", 6, 2, 9, 2),
    Sketcher.Constraint("Horizontal", 5, 2, 10, 2),
    Sketcher.Constraint("Horizontal", 13, 2, 16, 2),
    Sketcher.Constraint("Horizontal", 16, 2, 18, 2),
    Sketcher.Constraint("Horizontal", 15, 2, 19, 2),
    Sketcher.Constraint("Horizontal", 18, 2, 21, 2),
    Sketcher.Constraint("Horizontal", 17, 2, 22, 2),
    Sketcher.Constraint("Vertical", 0, 2, 2, 2),
    Sketcher.Constraint("Vertical", 3, 2, 5, 2),
    Sketcher.Constraint("Vertical", 10, 2, 12, 2),
    Sketcher.Constraint("Vertical", 9, 2, 13, 2),
    Sketcher.Constraint("Vertical", 12, 2, 14, 2),
    Sketcher.Constraint("Vertical", 11, 2, 15, 2),
    Sketcher.Constraint("Vertical", 4, 2, 18, 2),
    Sketcher.Constraint("Vertical", 2, 2, 20, 2),
    Sketcher.Constraint("Equal", 3, 8),
    Sketcher.Constraint("Angle", 1, Q("120.000001 deg")),
    Sketcher.Constraint("DistanceY", -1, 1, 0, 2, 18.0),
    Sketcher.Constraint("DistanceY", -1, 1, 2, 2, 25.0),
    Sketcher.Constraint("DistanceY", -1, 1, 12, 2, 130.0),
    Sketcher.Constraint("DistanceX", 2, 2, 7, 2, 105.0),
    Sketcher.Constraint("DistanceX", 0, 2, 0, 1, 4.041452),
    Sketcher.Constraint("DistanceX", -1, 1, 0, 2, 21.756562),
])
pocket7 = doc.addObject("PartDesign::Pocket", "Pocket006")
body.addObject(pocket7)
pocket7.Profile = sketch19
pocket7.Length = 5
pocket7.Reversed = True

doc.recompute()
